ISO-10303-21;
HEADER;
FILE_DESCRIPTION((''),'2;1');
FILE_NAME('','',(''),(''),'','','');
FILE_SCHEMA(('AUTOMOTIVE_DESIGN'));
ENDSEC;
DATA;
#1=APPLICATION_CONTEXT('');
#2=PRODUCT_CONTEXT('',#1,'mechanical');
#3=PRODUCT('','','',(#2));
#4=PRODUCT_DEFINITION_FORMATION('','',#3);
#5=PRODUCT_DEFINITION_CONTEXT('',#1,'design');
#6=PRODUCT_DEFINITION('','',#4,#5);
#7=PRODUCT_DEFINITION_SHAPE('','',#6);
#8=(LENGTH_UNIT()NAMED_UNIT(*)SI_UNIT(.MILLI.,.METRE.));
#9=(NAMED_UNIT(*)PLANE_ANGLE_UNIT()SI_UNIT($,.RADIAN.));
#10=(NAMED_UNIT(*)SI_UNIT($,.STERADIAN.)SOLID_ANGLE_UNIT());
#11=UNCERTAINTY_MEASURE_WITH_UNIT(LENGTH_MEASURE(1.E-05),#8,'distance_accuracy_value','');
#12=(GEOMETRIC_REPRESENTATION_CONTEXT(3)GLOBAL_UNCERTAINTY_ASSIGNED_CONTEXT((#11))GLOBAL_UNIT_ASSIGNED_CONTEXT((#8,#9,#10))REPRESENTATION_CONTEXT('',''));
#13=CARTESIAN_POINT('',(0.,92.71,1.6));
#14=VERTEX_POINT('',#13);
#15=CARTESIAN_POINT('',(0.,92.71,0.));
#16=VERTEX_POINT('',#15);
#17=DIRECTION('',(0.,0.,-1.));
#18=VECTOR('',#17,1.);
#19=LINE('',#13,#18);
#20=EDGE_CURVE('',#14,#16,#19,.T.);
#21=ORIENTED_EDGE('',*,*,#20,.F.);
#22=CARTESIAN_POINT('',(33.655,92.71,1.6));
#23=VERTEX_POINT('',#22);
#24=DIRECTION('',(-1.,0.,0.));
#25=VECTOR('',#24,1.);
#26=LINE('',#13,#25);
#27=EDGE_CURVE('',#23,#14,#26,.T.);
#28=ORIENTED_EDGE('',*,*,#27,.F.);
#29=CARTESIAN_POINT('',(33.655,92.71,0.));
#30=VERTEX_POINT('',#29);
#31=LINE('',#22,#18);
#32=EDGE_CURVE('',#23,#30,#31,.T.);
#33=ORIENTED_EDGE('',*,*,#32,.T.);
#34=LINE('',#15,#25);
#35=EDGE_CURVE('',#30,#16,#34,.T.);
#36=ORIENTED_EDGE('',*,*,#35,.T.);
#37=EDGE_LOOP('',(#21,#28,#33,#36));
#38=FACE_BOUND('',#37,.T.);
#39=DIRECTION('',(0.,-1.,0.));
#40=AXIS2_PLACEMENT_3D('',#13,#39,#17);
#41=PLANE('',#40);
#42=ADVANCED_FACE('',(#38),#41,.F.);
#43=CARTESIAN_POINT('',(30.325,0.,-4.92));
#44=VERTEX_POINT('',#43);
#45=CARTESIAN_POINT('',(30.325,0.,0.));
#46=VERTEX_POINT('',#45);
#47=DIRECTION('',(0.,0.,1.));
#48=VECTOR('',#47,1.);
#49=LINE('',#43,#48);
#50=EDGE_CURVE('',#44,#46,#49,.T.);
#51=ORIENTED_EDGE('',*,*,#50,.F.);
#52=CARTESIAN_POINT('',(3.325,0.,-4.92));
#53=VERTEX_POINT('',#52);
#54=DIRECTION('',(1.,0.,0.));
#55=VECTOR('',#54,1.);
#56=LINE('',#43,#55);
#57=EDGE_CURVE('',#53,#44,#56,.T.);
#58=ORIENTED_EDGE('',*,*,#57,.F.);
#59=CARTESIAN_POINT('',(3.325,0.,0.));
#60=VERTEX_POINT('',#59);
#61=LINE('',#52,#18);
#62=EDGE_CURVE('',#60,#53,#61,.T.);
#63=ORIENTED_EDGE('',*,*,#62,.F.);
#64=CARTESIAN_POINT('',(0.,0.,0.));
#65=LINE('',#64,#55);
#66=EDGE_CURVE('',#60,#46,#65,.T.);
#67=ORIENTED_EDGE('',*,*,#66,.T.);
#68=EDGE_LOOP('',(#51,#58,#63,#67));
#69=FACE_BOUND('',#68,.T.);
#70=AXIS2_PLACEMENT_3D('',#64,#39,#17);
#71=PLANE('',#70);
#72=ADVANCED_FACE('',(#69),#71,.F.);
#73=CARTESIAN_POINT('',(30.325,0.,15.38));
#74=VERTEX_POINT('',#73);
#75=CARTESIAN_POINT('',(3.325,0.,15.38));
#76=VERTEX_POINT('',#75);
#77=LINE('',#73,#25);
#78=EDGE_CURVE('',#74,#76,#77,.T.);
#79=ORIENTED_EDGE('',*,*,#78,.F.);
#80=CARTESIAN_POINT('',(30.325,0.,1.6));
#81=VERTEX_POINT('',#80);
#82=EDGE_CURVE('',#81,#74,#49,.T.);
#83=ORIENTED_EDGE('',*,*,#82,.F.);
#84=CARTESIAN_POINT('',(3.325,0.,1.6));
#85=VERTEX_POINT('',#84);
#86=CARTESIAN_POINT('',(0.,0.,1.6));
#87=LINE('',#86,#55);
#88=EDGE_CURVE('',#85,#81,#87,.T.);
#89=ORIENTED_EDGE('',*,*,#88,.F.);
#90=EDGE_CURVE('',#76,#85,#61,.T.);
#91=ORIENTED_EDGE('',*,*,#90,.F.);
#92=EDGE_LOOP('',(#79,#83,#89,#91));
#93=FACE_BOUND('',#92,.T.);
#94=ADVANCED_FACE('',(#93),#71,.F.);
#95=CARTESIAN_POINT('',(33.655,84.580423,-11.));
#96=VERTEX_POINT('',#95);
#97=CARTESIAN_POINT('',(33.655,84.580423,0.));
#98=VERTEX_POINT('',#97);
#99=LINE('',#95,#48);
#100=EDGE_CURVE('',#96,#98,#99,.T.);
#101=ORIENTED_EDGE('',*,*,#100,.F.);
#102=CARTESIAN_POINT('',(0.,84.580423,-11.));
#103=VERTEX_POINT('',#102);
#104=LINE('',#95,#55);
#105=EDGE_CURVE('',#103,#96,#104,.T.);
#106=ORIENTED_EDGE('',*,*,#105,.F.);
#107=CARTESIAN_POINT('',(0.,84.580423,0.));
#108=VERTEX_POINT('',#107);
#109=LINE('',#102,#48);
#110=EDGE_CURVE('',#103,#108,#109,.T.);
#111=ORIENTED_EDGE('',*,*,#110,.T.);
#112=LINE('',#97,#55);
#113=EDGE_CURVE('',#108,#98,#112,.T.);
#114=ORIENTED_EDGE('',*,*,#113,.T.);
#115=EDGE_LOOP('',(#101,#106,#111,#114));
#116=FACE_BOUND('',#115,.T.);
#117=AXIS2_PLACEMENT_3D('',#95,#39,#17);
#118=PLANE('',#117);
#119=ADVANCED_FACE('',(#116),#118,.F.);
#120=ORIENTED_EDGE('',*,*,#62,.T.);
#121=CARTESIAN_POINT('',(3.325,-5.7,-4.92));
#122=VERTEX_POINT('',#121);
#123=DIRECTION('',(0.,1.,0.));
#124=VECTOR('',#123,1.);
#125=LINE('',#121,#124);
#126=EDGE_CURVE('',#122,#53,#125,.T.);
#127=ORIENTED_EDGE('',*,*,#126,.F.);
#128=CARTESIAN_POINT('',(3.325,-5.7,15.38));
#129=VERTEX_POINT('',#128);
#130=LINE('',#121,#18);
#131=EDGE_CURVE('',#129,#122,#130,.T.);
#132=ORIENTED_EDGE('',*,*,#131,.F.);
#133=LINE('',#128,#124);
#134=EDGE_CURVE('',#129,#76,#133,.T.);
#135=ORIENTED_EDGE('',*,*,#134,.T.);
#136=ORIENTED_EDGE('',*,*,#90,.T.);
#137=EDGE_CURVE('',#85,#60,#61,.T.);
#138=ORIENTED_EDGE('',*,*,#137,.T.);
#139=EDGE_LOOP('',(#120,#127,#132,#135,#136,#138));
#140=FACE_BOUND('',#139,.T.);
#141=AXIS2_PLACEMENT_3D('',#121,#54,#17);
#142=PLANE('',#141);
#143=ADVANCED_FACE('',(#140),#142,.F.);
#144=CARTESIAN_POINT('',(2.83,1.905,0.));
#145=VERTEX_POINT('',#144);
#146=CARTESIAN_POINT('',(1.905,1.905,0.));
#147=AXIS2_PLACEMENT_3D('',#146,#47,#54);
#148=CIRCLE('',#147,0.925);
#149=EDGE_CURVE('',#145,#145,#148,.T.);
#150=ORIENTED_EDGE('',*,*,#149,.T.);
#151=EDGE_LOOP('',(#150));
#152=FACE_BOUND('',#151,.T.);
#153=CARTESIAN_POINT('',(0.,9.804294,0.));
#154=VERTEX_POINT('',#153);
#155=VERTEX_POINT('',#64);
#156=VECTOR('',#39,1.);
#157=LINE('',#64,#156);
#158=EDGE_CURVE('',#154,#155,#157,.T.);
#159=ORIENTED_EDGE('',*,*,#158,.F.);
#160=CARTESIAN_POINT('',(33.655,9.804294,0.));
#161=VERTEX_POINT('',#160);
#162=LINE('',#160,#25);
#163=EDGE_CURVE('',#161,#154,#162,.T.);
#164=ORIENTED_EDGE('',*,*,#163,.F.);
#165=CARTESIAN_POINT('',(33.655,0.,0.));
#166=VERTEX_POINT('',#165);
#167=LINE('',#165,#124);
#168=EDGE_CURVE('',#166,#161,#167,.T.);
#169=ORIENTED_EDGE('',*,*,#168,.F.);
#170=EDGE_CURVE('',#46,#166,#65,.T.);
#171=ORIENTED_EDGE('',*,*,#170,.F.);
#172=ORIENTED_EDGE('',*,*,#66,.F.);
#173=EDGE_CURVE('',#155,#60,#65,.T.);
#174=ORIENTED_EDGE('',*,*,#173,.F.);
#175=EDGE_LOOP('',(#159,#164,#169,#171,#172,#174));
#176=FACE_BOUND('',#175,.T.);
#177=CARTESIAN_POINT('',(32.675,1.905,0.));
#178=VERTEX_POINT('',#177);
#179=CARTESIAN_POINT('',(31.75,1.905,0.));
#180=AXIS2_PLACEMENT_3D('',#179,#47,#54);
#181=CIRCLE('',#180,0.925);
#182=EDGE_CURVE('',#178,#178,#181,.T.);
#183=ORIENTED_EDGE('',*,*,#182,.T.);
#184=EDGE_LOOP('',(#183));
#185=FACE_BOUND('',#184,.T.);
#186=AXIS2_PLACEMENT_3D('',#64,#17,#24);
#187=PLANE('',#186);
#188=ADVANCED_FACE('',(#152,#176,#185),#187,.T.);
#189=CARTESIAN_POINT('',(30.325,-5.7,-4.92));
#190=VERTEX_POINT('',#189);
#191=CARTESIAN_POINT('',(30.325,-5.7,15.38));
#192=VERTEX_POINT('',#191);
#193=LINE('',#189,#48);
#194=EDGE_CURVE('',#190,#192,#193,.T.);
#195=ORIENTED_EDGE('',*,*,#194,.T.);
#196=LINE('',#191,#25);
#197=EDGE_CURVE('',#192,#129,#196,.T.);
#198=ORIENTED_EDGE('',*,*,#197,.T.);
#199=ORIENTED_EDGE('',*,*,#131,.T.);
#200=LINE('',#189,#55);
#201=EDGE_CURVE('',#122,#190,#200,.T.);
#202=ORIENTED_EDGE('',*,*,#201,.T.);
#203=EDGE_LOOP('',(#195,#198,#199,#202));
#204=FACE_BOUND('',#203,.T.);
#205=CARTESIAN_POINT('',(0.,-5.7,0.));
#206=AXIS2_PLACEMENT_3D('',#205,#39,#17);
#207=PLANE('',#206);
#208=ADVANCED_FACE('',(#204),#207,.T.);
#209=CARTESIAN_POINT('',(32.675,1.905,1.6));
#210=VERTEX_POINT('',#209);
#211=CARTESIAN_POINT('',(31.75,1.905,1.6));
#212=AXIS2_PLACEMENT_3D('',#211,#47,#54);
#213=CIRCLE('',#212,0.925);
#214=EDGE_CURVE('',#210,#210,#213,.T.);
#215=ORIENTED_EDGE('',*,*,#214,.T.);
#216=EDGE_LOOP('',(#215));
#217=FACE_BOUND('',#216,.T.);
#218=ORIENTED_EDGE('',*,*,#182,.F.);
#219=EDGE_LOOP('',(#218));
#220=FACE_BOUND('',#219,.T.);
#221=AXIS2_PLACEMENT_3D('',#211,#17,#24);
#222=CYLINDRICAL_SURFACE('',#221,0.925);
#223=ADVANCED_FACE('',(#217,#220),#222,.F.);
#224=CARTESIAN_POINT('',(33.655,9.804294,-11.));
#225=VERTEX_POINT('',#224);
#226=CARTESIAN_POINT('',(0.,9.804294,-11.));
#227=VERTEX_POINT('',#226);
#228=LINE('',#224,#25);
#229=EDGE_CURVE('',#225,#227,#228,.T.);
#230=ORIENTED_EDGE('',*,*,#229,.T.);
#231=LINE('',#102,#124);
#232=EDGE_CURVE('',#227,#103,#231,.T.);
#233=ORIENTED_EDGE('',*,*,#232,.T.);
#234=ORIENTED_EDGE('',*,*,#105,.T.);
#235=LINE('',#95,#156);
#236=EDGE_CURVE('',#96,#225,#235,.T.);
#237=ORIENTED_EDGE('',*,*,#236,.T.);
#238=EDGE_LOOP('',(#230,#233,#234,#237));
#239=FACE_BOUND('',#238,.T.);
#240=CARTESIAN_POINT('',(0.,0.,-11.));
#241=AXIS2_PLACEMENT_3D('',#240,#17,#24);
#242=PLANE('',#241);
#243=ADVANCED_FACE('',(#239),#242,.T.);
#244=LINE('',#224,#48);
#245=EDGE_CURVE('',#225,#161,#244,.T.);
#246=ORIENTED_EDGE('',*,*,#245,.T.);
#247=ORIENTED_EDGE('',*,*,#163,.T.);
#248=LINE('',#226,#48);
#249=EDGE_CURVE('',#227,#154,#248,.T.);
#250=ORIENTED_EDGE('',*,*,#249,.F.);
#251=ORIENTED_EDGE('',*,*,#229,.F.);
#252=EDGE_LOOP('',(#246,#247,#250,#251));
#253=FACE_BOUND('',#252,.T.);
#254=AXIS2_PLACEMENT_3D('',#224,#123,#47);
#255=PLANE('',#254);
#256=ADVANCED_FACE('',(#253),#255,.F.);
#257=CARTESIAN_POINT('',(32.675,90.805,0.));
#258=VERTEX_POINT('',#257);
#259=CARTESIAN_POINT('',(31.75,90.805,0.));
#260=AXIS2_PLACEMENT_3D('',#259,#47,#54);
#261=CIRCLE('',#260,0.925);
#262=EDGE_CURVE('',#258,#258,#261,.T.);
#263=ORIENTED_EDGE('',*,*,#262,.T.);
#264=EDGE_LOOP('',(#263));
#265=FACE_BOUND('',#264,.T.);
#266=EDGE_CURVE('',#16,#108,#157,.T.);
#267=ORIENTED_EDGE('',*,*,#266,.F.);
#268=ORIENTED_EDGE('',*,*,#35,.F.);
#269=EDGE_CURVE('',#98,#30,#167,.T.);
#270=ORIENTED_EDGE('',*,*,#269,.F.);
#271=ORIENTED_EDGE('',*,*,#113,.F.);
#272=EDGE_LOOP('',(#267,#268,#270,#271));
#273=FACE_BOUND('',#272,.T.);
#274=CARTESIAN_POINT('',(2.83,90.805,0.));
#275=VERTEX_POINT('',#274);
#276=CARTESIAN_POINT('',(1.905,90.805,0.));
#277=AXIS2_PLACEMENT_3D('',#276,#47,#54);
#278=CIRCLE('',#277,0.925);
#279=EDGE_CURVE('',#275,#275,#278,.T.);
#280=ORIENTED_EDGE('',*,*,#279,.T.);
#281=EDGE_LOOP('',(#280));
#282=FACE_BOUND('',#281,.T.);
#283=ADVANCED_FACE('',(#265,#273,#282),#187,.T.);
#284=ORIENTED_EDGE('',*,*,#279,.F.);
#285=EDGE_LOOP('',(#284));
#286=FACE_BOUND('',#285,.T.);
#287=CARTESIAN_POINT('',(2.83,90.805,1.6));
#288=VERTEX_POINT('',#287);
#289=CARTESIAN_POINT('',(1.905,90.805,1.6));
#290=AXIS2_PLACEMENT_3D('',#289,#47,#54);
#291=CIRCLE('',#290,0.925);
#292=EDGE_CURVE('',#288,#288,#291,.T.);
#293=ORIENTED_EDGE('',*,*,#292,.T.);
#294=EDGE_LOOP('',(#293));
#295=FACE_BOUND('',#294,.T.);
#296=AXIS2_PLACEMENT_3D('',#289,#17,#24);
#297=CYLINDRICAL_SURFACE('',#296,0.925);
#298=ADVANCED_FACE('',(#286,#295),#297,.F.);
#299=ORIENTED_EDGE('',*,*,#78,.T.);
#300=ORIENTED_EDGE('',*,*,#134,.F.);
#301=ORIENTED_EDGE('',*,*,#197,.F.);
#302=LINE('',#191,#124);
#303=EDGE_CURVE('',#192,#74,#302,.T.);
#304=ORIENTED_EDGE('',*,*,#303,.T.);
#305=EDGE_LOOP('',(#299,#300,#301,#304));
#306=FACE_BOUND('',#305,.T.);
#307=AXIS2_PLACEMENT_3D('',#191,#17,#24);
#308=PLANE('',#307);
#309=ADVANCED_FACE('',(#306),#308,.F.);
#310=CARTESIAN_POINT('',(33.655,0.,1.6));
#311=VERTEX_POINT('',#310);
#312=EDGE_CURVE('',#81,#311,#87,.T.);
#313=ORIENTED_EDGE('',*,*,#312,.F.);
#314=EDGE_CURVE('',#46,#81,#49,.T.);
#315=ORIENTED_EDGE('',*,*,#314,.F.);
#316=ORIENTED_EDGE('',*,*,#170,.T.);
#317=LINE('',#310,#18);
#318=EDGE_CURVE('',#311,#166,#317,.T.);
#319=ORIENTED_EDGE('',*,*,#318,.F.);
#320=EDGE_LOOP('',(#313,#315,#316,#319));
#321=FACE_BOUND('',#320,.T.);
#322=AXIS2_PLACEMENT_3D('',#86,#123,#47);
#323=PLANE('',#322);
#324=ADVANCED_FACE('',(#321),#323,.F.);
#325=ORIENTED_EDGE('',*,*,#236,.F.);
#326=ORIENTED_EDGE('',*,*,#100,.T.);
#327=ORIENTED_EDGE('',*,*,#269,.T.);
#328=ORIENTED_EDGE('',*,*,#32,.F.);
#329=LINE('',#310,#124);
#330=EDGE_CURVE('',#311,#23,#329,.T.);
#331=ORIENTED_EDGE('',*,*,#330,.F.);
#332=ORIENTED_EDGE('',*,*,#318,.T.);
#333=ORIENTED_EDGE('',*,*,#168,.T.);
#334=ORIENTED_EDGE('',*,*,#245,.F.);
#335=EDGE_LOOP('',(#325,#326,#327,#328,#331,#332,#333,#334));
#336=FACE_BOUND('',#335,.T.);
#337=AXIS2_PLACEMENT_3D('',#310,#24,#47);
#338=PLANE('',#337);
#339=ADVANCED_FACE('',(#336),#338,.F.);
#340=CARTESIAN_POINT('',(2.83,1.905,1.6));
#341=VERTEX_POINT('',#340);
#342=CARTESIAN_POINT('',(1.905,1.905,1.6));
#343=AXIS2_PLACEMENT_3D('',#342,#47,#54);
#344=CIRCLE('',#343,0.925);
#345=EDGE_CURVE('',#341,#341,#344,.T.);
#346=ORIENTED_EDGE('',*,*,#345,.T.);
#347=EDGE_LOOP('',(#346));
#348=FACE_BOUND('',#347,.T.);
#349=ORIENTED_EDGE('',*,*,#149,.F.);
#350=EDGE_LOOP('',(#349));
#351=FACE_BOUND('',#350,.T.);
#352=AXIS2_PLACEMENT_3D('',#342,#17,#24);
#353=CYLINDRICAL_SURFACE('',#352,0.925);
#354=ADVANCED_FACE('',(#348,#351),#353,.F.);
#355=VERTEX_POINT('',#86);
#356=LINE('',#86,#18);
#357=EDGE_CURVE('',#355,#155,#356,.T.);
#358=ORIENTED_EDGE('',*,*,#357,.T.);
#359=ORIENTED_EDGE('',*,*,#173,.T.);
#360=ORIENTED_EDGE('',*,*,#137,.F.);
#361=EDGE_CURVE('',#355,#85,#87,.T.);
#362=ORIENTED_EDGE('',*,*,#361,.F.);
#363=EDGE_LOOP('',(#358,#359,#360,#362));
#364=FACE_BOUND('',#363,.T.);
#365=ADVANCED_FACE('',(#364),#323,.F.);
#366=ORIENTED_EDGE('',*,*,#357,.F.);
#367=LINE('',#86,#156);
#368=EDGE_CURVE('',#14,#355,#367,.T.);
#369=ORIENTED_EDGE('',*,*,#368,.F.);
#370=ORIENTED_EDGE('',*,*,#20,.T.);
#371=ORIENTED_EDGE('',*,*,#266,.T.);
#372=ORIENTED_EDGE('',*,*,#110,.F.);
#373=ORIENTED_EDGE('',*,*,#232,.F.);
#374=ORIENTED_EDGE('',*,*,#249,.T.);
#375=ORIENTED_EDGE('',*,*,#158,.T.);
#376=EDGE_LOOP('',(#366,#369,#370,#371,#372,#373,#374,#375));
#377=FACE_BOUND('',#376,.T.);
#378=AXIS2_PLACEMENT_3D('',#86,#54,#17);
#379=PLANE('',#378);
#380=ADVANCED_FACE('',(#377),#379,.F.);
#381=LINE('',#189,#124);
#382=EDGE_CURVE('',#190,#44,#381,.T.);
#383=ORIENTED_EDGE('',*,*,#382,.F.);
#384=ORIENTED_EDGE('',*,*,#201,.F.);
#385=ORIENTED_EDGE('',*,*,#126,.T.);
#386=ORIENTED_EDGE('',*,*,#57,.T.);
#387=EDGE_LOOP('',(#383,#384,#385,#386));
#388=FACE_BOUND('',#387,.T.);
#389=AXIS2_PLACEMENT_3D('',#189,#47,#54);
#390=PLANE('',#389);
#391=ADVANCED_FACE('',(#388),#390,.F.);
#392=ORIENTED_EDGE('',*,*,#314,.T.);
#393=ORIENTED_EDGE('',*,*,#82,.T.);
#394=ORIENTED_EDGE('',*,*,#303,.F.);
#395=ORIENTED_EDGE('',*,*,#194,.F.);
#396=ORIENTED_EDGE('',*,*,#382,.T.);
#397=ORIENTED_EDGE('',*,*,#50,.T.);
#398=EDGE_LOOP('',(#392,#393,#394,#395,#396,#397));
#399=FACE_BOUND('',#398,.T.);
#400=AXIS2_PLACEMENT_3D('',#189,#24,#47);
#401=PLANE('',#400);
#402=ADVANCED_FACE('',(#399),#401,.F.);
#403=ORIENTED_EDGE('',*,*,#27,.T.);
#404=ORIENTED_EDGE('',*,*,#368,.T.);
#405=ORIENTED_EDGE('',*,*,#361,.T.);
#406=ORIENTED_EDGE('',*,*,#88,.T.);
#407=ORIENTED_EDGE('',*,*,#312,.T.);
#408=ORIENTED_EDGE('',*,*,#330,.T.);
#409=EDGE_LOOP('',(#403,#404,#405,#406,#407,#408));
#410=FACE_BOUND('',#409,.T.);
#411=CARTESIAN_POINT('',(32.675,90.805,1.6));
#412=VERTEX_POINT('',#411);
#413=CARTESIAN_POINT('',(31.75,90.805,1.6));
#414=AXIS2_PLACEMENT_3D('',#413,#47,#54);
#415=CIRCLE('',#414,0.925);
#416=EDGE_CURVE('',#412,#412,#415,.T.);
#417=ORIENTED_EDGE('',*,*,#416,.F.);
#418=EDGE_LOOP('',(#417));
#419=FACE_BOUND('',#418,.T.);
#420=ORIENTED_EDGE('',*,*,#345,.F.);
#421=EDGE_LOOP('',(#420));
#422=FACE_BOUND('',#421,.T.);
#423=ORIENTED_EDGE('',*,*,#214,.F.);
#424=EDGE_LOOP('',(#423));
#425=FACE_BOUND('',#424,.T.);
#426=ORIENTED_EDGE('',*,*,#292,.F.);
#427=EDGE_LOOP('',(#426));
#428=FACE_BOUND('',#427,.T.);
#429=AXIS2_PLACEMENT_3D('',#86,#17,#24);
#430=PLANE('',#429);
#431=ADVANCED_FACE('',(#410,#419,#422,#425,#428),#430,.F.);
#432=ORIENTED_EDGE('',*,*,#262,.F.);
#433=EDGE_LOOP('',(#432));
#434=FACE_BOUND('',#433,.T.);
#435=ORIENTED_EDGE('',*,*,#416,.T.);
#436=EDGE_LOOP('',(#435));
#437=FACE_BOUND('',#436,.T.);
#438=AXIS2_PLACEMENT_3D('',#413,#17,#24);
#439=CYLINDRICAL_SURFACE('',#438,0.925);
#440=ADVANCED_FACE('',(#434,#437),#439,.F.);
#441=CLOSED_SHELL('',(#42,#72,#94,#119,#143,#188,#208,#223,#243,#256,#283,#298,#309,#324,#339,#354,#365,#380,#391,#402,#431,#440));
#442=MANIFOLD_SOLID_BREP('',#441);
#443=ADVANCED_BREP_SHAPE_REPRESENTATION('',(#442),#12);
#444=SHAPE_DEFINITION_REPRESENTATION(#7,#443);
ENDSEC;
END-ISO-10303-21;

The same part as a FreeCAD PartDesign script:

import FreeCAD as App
import Part
import Sketcher

doc = App.newDocument("Part")
body = doc.addObject("PartDesign::Body", "Body")

# Sketch on XY plane
sketch1 = body.newObject("Sketcher::SketchObject", "Sketch")
sketch1.AttachmentSupport = (doc.getObject("XY_Plane"), [""])
sketch1.MapMode = "FlatFace"
sketch1.addGeometry([
    Part.LineSegment(App.Vector(0, 92.71, 0), App.Vector(0, 0, 0)),  # 0
    Part.LineSegment(App.Vector(0, 0, 0), App.Vector(33.655, 0, 0)),  # 1
    Part.LineSegment(App.Vector(33.655, 0, 0), App.Vector(33.655, 92.71, 0)),  # 2
    Part.LineSegment(App.Vector(33.655, 92.71, 0), App.Vector(0, 92.71, 0)),  # 3
    Part.Circle(App.Vector(1.905, 1.905, 0), App.Vector(0, 0, 1), 0.925),  # 4
    Part.Circle(App.Vector(31.75, 1.905, 0), App.Vector(0, 0, 1), 0.925),  # 5
    Part.Circle(App.Vector(1.905, 90.805, 0), App.Vector(0, 0, 1), 0.925),  # 6
    Part.Circle(App.Vector(31.75, 90.805, 0), App.Vector(0, 0, 1), 0.925),  # 7
], False)
sketch1.addConstraint([
    Sketcher.Constraint("Coincident", 0, 2, 1, 1),
    Sketcher.Constraint("Coincident", 1, 2, 2, 1),
    Sketcher.Constraint("Coincident", 2, 2, 3, 1),
    Sketcher.Constraint("Coincident", 3, 2, 0, 1),
    Sketcher.Constraint("Vertical", 0),
    Sketcher.Constraint("Horizontal", 1),
    Sketcher.Constraint("Vertical", 2),
    Sketcher.Constraint("Horizontal", 3),
    Sketcher.Constraint("Coincident", 0, 2, -1, 1),
    Sketcher.Constraint("Equal", 4, 5),
    Sketcher.Constraint("Equal", 5, 6),
    Sketcher.Constraint("Equal", 6, 7),
    Sketcher.Constraint("Horizontal", 4, 3, 5, 3),
    Sketcher.Constraint("Horizontal", 6, 3, 7, 3),
    Sketcher.Constraint("Vertical", 4, 3, 6, 3),
    Sketcher.Constraint("Vertical", 5, 3, 7, 3),
    Sketcher.Constraint("Diameter", 4, 1.85),
    Sketcher.Constraint("DistanceY", 0, 2, 0, 1, 92.71),
    Sketcher.Constraint("DistanceY", 4, 3, 6, 3, 88.9),
    Sketcher.Constraint("DistanceX", 1, 1, 1, 2, 33.655),
    Sketcher.Constraint("DistanceX", -1, 1, 5, 3, 31.75),
    Sketcher.Constraint("DistanceX", 4, 3, 1, 2, 31.75),
    Sketcher.Constraint("DistanceY", -1, 1, 4, 3, 1.905),
])
pad1 = body.newObject("PartDesign::Pad", "Pad")
pad1.Profile = sketch1
pad1.Length = 1.6

# Sketch on XY plane
sketch2 = body.newObject("Sketcher::SketchObject", "Sketch001")
sketch2.AttachmentSupport = (doc.getObject("XY_Plane"), [""])
sketch2.MapMode = "FlatFace"
sketch2.addGeometry([
    Part.LineSegment(App.Vector(33.655, 84.580423, 0), App.Vector(33.655, 9.804294, 0)),
    Part.LineSegment(App.Vector(33.655, 9.804294, 0), App.Vector(0, 9.804294, 0)),
    Part.LineSegment(App.Vector(0, 9.804294, 0), App.Vector(0, 84.580423, 0)),
    Part.LineSegment(App.Vector(0, 84.580423, 0), App.Vector(33.655, 84.580423, 0)),
], False)
sketch2.addConstraint([
    Sketcher.Constraint("Coincident", 0, 2, 1, 1),
    Sketcher.Constraint("Coincident", 1, 2, 2, 1),
    Sketcher.Constraint("Coincident", 2, 2, 3, 1),
    Sketcher.Constraint("Coincident", 3, 2, 0, 1),
    Sketcher.Constraint("Vertical", 0),
    Sketcher.Constraint("Horizontal", 1),
    Sketcher.Constraint("Vertical", 2),
    Sketcher.Constraint("Horizontal", 3),
    Sketcher.Constraint("PointOnObject", 1, 2, -2),
    Sketcher.Constraint("DistanceX", 1, 2, 1, 1, 33.655),
    Sketcher.Constraint("DistanceY", 0, 2, 0, 1, 74.776129),
    Sketcher.Constraint("DistanceY", -1, 1, 0, 2, 9.804294),
])
pad2 = body.newObject("PartDesign::Pad", "Pad001")
pad2.Profile = sketch2
pad2.Length = 11
pad2.Reversed = True

# Sketch on XZ plane
sketch3 = body.newObject("Sketcher::SketchObject", "Sketch002")
sketch3.AttachmentSupport = (doc.getObject("XZ_Plane"), [""])
sketch3.MapMode = "FlatFace"
sketch3.addGeometry([
    Part.LineSegment(App.Vector(3.325, 15.38, 0), App.Vector(3.325, -4.92, 0)),
    Part.LineSegment(App.Vector(3.325, -4.92, 0), App.Vector(30.325, -4.92, 0)),
    Part.LineSegment(App.Vector(30.325, -4.92, 0), App.Vector(30.325, 15.38, 0)),
    Part.LineSegment(App.Vector(30.325, 15.38, 0), App.Vector(3.325, 15.38, 0)),
], False)
sketch3.addConstraint([
    Sketcher.Constraint("Coincident", 0, 2, 1, 1),
    Sketcher.Constraint("Coincident", 1, 2, 2, 1),
    Sketcher.Constraint("Coincident", 2, 2, 3, 1),
    Sketcher.Constraint("Coincident", 3, 2, 0, 1),
    Sketcher.Constraint("Vertical", 0),
    Sketcher.Constraint("Horizontal", 1),
    Sketcher.Constraint("Vertical", 2),
    Sketcher.Constraint("Horizontal", 3),
    Sketcher.Constraint("DistanceX", 1, 1, 1, 2, 27.0),
    Sketcher.Constraint("DistanceY", 0, 2, 0, 1, 20.3),
    Sketcher.Constraint("DistanceY", 0, 2, -1, 1, 4.92),
    Sketcher.Constraint("DistanceX", -1, 1, 0, 2, 3.325),
])
pad3 = body.newObject("PartDesign::Pad", "Pad002")
pad3.Profile = sketch3
pad3.Length = 5.7

doc.recompute()
